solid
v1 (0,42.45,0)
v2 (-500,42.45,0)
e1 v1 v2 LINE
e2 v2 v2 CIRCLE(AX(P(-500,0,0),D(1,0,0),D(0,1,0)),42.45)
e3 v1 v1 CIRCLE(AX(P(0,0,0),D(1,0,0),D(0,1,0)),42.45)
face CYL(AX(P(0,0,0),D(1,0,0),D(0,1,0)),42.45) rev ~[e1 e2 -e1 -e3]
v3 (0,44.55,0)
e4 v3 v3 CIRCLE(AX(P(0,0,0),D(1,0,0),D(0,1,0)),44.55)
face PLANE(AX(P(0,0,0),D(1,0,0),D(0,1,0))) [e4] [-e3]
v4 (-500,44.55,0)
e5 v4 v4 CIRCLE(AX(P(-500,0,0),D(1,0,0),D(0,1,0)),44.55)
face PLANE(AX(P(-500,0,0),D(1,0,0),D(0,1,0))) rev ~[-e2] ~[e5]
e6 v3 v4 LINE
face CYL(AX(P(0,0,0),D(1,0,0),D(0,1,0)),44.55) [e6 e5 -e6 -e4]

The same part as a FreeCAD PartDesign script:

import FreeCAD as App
import Part
import Sketcher

V = App.Vector
Q = App.Units.Quantity

doc = App.newDocument("Part")
body = doc.addObject("PartDesign::Body", "Body")

# Sketch on YZ plane
sketch1 = body.newObject("Sketcher::SketchObject", "Sketch")
sketch1.AttachmentSupport = (doc.getObject("YZ_Plane"), [""])
sketch1.MapMode = "FlatFace"
sketch1.addGeometry([
    Part.Circle(V(0, 0, 0), V(0, 0, 1), 45),
    Part.Circle(V(0, 0, 0), V(0, 0, 1), 42),
], False)
sketch1.addConstraint([
    Sketcher.Constraint("Coincident", 0, 3, -1, 1),
    Sketcher.Constraint("Coincident", 1, 3, -1, 1),
    Sketcher.Constraint("Diameter", 0, Q("89.1 mm")),
    Sketcher.Constraint("Diameter", 1, Q("84.9 mm")),
])
pad1 = body.newObject("PartDesign::Pad", "Pad")
pad1.Profile = sketch1
pad1.Length = 500
pad1.Reversed = True

doc.recompute()
